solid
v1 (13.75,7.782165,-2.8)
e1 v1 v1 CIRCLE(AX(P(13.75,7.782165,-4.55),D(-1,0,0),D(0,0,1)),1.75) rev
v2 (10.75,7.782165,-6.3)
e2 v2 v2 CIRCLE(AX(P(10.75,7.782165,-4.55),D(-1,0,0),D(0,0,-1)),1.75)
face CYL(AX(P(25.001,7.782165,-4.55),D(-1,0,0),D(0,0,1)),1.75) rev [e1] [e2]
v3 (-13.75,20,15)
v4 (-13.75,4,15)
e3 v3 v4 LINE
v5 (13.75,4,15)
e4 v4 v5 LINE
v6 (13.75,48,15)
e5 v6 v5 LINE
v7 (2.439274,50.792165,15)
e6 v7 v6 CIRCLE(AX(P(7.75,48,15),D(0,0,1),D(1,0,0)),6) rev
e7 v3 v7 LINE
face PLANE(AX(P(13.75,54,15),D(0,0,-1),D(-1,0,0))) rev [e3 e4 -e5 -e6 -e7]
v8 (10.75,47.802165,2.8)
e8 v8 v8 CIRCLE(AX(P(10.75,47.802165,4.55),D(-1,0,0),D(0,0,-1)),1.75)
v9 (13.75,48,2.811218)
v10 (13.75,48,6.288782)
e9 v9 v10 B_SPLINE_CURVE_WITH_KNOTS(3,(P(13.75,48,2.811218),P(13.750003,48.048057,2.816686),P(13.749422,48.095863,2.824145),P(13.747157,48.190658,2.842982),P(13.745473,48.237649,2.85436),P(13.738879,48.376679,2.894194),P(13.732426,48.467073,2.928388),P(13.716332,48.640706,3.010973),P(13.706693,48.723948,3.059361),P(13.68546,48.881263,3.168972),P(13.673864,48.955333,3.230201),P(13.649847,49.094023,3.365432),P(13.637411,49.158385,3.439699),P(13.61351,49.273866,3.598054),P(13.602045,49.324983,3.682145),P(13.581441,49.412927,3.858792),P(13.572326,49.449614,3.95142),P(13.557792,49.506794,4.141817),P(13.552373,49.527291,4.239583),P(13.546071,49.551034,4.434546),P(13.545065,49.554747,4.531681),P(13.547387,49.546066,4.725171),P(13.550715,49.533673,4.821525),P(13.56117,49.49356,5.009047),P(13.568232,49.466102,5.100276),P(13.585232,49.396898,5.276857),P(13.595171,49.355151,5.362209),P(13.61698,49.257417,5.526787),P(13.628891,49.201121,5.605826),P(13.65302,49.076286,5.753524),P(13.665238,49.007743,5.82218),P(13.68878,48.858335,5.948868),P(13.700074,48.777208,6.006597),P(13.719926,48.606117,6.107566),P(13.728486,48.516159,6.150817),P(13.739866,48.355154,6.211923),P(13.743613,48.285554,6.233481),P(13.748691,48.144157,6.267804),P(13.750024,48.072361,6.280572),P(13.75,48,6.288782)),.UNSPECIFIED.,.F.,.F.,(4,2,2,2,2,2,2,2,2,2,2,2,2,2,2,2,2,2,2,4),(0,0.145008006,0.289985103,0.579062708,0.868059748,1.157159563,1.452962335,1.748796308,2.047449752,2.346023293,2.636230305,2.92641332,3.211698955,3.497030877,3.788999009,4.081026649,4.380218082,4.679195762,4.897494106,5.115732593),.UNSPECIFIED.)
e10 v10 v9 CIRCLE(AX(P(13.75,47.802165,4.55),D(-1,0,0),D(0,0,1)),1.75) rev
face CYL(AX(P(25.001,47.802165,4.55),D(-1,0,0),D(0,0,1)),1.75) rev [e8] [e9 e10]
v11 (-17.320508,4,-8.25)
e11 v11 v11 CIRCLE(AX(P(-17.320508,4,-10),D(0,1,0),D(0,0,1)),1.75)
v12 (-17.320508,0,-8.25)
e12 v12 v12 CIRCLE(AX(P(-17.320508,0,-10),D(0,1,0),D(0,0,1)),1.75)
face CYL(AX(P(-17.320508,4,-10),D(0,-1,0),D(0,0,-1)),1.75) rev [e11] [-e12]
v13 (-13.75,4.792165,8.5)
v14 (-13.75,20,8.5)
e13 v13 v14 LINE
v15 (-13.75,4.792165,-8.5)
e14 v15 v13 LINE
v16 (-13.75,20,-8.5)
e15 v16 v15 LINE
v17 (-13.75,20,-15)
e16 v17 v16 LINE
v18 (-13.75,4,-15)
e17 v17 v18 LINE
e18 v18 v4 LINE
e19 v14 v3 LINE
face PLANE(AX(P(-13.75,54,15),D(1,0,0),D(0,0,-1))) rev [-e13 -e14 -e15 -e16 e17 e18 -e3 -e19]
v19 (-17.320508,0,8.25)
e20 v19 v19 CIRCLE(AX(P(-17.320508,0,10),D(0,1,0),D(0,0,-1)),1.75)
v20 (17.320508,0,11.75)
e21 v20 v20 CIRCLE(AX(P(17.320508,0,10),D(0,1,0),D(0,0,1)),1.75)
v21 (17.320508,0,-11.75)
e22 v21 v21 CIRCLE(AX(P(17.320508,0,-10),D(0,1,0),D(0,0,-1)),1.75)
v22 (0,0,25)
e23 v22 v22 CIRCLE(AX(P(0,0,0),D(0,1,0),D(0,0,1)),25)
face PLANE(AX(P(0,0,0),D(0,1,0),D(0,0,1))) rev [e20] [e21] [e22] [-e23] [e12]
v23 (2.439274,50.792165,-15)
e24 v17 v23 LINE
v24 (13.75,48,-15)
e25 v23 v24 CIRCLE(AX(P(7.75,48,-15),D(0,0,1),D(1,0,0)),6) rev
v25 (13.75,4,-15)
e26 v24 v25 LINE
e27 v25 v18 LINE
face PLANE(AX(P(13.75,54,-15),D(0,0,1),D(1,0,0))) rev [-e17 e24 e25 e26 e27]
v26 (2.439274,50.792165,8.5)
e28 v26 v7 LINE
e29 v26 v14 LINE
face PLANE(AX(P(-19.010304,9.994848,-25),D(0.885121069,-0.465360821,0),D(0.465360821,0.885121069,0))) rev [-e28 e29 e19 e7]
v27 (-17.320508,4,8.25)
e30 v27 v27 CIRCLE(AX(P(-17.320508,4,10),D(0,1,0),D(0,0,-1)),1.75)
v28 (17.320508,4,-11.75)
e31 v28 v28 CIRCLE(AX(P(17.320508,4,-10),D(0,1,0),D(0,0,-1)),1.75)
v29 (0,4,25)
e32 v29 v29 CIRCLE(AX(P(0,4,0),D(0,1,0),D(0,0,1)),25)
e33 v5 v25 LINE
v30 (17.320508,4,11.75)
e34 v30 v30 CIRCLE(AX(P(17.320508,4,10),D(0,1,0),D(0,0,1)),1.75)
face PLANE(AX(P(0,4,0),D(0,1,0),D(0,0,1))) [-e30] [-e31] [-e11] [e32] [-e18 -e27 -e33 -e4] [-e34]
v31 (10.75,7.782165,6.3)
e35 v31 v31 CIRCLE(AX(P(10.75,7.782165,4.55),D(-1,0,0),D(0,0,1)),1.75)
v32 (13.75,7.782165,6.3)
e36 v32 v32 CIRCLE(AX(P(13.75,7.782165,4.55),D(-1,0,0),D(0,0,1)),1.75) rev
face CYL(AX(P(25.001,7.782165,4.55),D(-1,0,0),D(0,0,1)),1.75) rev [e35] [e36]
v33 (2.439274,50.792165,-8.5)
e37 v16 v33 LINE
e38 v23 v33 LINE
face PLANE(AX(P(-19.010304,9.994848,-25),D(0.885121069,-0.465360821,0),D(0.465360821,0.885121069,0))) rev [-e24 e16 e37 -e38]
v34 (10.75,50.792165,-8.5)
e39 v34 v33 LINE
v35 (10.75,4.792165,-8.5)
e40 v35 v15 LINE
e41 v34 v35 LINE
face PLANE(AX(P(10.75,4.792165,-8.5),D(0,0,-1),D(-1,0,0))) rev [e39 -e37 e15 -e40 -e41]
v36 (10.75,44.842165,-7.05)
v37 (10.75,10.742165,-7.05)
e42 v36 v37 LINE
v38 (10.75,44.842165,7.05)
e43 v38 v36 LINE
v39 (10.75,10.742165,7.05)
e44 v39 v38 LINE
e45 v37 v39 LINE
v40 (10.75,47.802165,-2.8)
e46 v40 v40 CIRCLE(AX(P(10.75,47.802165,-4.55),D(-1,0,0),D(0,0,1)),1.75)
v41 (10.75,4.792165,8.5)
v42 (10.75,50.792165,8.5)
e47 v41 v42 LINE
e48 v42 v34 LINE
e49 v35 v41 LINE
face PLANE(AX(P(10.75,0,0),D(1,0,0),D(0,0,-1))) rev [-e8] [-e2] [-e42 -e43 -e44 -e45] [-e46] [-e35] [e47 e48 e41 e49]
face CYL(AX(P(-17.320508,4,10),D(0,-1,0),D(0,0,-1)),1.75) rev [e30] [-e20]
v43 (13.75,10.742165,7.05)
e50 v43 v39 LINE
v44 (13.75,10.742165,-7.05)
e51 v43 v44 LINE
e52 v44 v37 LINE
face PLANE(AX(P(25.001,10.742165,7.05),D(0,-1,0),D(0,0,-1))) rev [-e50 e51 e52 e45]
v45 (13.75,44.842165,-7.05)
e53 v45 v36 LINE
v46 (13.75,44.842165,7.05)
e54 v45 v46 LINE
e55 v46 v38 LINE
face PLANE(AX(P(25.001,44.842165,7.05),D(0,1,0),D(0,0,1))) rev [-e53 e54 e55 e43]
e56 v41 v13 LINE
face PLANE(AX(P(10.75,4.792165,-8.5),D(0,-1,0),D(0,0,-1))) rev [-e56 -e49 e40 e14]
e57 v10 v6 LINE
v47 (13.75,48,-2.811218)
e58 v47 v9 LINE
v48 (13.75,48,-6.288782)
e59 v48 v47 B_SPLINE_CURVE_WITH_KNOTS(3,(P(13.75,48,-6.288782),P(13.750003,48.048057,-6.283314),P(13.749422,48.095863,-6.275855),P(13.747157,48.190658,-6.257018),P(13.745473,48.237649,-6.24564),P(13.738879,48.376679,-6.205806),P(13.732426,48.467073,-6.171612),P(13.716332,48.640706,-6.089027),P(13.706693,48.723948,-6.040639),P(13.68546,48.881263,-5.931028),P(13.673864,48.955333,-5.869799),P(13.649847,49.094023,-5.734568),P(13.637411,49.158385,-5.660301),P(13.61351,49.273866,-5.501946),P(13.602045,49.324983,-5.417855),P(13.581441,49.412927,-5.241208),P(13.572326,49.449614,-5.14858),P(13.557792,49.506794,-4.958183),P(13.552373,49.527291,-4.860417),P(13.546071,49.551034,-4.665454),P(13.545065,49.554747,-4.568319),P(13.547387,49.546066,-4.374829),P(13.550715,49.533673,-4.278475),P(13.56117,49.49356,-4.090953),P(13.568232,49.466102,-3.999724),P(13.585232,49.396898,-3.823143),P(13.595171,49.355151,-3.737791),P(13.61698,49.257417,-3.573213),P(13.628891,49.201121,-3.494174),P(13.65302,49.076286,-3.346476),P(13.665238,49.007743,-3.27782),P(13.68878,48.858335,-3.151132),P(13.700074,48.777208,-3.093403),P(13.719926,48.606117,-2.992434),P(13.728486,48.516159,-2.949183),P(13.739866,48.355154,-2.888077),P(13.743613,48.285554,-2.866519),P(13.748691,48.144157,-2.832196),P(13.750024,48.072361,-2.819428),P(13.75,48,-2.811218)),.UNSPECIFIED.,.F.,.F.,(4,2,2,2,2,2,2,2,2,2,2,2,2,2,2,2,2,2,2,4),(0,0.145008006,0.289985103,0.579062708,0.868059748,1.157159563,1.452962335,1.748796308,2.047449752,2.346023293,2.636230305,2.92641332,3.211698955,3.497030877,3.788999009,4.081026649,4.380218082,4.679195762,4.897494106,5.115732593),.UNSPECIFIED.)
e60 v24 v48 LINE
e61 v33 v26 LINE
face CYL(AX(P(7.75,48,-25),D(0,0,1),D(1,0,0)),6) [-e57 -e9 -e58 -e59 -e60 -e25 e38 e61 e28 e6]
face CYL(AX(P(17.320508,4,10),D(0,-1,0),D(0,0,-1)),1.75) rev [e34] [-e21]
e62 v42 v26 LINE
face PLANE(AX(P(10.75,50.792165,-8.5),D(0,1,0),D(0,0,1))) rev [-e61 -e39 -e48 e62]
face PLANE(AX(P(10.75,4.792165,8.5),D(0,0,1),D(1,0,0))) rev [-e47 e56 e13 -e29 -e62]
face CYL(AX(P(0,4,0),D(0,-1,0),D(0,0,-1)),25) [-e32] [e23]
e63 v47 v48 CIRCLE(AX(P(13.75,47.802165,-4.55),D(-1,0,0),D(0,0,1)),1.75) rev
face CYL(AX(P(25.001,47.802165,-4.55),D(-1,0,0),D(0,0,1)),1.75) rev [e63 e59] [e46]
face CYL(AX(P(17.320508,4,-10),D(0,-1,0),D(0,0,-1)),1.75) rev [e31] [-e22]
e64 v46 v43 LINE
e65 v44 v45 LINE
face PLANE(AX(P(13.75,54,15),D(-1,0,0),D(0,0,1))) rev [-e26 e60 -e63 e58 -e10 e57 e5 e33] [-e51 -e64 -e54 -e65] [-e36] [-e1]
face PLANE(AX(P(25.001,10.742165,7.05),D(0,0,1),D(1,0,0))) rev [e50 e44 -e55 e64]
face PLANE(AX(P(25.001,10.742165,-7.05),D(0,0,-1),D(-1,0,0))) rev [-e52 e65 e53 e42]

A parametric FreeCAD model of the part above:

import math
import FreeCAD as App
import Part
import Sketcher
from FreeCAD import Vector

doc = App.newDocument("Part")
body = doc.addObject("PartDesign::Body", "Body")

sketch1 = body.newObject("Sketcher::SketchObject", "Sketch")
sketch1.AttachmentSupport = (doc.getObject("XZ_Plane"), [""])
sketch1.MapMode = "FlatFace"
sketch1.addGeometry([
    Part.Circle(Vector(0, 0, 0), Vector(0, 0, 1), 25),
    Part.Circle(Vector(-17.3, 10, 0), Vector(0, 0, 1), 1.8),
    Part.Circle(Vector(17.3, 10, 0), Vector(0, 0, 1), 1.8),
    Part.Circle(Vector(-17.3, -10, 0), Vector(0, 0, 1), 1.8),
    Part.Circle(Vector(17.3, -10, 0), Vector(0, 0, 1), 1.8),
], False)
sketch1.addConstraint([
    Sketcher.Constraint("Coincident", 0, 3, -1, 1),
    Sketcher.Constraint("Equal", 1, 2),
    Sketcher.Constraint("Equal", 2, 3),
    Sketcher.Constraint("Equal", 3, 4),
    Sketcher.Constraint("Symmetric", 2, 3, 3, 3, -1, 1),
    Sketcher.Constraint("Symmetric", 1, 3, 4, 3, -1, 1),
    Sketcher.Constraint("Symmetric", 1, 3, 2, 3, -2),
    Sketcher.Constraint("Diameter", 0, 50.0),
    Sketcher.Constraint("Diameter", 1, 3.5),
    Sketcher.Constraint("DistanceY", -1, 1, 1, 3, 10.0),
    Sketcher.Constraint("DistanceX", 1, 3, -1, 1, 17.320508),
])
pad1 = body.newObject("PartDesign::Pad", "Pad")
pad1.Profile = sketch1
pad1.Length = 4
pad1.Reversed = True

sketch2 = body.newObject("Sketcher::SketchObject", "Sketch001")
sketch2.AttachmentSupport = (doc.getObject("XZ_Plane"), [""])
sketch2.MapMode = "FlatFace"
sketch2.AttachmentOffset = App.Placement(Vector(0, 0, -4), App.Rotation())
sketch2.addGeometry([
    Part.LineSegment(Vector(-14, -15, 0), Vector(-14, 15, 0)),
    Part.LineSegment(Vector(-14, 15, 0), Vector(14, 15, 0)),
    Part.LineSegment(Vector(14, 15, 0), Vector(14, -15, 0)),
    Part.LineSegment(Vector(14, -15, 0), Vector(-14, -15, 0)),
], False)
sketch2.addConstraint([
    Sketcher.Constraint("Coincident", 0, 2, 1, 1),
    Sketcher.Constraint("Coincident", 1, 2, 2, 1),
    Sketcher.Constraint("Coincident", 2, 2, 3, 1),
    Sketcher.Constraint("Coincident", 3, 2, 0, 1),
    Sketcher.Constraint("Vertical", 0),
    Sketcher.Constraint("Horizontal", 1),
    Sketcher.Constraint("Vertical", 2),
    Sketcher.Constraint("Horizontal", 3),
    Sketcher.Constraint("Symmetric", 0, 2, 2, 2, -1, 1),
    Sketcher.Constraint("DistanceY", 0, 1, 0, 2, 30.0),
    Sketcher.Constraint("DistanceX", 1, 1, 1, 2, 27.5),
])
pad2 = body.newObject("PartDesign::Pad", "Pad001")
pad2.Profile = sketch2
pad2.Length = 50
pad2.Reversed = True

sketch3 = body.newObject("Sketcher::SketchObject", "Sketch002")
sketch3.AttachmentSupport = (doc.getObject("XY_Plane"), [""])
sketch3.MapMode = "FlatFace"
sketch3.AttachmentOffset = App.Placement(Vector(0, 0, 15), App.Rotation())
sketch3.addGeometry([
    Part.ArcOfCircle(Part.Circle(Vector(8, 48, 0), Vector(0, 0, 1), 6), math.radians(90), math.radians(152)),
    Part.LineSegment(Vector(8, 54, 0), Vector(-14, 54, 0)),
    Part.LineSegment(Vector(-14, 54, 0), Vector(-14, 20, 0)),
    Part.LineSegment(Vector(-14, 20, 0), Vector(2, 51, 0)),
    Part.LineSegment(Vector(14, 48, 0), Vector(14, 54, 0)),
    Part.LineSegment(Vector(14, 54, 0), Vector(8, 54, 0)),
    Part.ArcOfCircle(Part.Circle(Vector(8, 48, 0), Vector(0, 0, 1), 6), math.radians(0), math.radians(90)),
], False)
sketch3.addConstraint([
    Sketcher.Constraint("Tangent", 0, 1, 1, 1),
    Sketcher.Constraint("Coincident", 1, 2, 2, 1),
    Sketcher.Constraint("Coincident", 2, 2, 3, 1),
    Sketcher.Constraint("Tangent", 3, 2, 0, 2),
    Sketcher.Constraint("Coincident", 4, 2, 5, 1),
    Sketcher.Constraint("Tangent", 5, 2, 6, 2),
    Sketcher.Constraint("Tangent", 6, 1, 4, 1),
    Sketcher.Constraint("Horizontal", 1),
    Sketcher.Constraint("Vertical", 2),
    Sketcher.Constraint("Vertical", 4),
    Sketcher.Constraint("Horizontal", 5),
    Sketcher.Constraint("Coincident", 6, 3, 0, 3),
    Sketcher.Constraint("Equal", 0, 6),
    Sketcher.Constraint("Radius", 0, 6.0),
    Sketcher.Constraint("DistanceY", 2, 2, 2, 1, 34.0),
    Sketcher.Constraint("DistanceX", 1, 2, 1, 1, 21.5),
    Sketcher.Constraint("DistanceY", -1, 1, 0, 3, 48.0),
    Sketcher.Constraint("DistanceX", -1, 1, 0, 3, 7.75),
])
pocket1 = body.newObject("PartDesign::Pocket", "Pocket")
pocket1.Profile = sketch3
pocket1.Type = "ThroughAll"

sketch4 = body.newObject("Sketcher::SketchObject", "Sketch003")
sketch4.AttachmentSupport = (doc.getObject("YZ_Plane"), [""])
sketch4.MapMode = "FlatFace"
sketch4.AttachmentOffset = App.Placement(Vector(0, 0, -13.75), App.Rotation())
sketch4.addGeometry([
    Part.LineSegment(Vector(51, -8, 0), Vector(5, -8, 0)),
    Part.LineSegment(Vector(5, -8, 0), Vector(5, 8, 0)),
    Part.LineSegment(Vector(5, 8, 0), Vector(51, 8, 0)),
    Part.LineSegment(Vector(51, 8, 0), Vector(51, -8, 0)),
], False)
sketch4.addConstraint([
    Sketcher.Constraint("Coincident", 0, 2, 1, 1),
    Sketcher.Constraint("Coincident", 1, 2, 2, 1),
    Sketcher.Constraint("Coincident", 2, 2, 3, 1),
    Sketcher.Constraint("Coincident", 3, 2, 0, 1),
    Sketcher.Constraint("Horizontal", 0),
    Sketcher.Constraint("Vertical", 1),
    Sketcher.Constraint("Horizontal", 2),
    Sketcher.Constraint("Vertical", 3),
    Sketcher.Constraint("DistanceX", 0, 2, 0, 1, 46.0),
    Sketcher.Constraint("DistanceY", 1, 1, 1, 2, 17.0),
    Sketcher.Constraint("DistanceY", 0, 2, -1, 1, 8.5),
    Sketcher.Constraint("DistanceX", -1, 1, 0, 2, 4.792165),
])
pocket2 = body.newObject("PartDesign::Pocket", "Pocket001")
pocket2.Profile = sketch4
pocket2.Length = 24.5
pocket2.Reversed = True

sketch5 = body.newObject("Sketcher::SketchObject", "Sketch004")
sketch5.AttachmentSupport = (doc.getObject("YZ_Plane"), [""])
sketch5.MapMode = "FlatFace"
sketch5.AttachmentOffset = App.Placement(Vector(0, 0, 10.75), App.Rotation())
sketch5.addGeometry(Part.Circle(Vector(47.8, -4.5, 0), Vector(0, 0, 1), 1.8), False)
sketch5.addConstraint([
    Sketcher.Constraint("Diameter", 0, 3.5),
    Sketcher.Constraint("DistanceY", 0, 3, -1, 1, 4.55),
    Sketcher.Constraint("DistanceX", -1, 1, 0, 3, 47.802165),
])
pocket3 = body.newObject("PartDesign::Pocket", "Pocket002")
pocket3.Profile = sketch5
pocket3.Type = "UpToFirst"
pocket3.Reversed = True

sketch6 = body.newObject("Sketcher::SketchObject", "Sketch005")
sketch6.AttachmentSupport = (doc.getObject("YZ_Plane"), [""])
sketch6.MapMode = "FlatFace"
sketch6.AttachmentOffset = App.Placement(Vector(0, 0, 10.75), App.Rotation())
sketch6.addGeometry(Part.Circle(Vector(7.8, -4.5, 0), Vector(0, 0, 1), 1.8), False)
sketch6.addConstraint([
    Sketcher.Constraint("Diameter", 0, 3.5),
    Sketcher.Constraint("DistanceY", 0, 3, -1, 1, 4.55),
    Sketcher.Constraint("DistanceX", -1, 1, 0, 3, 7.782165),
])
pocket4 = body.newObject("PartDesign::Pocket", "Pocket003")
pocket4.Profile = sketch6
pocket4.Type = "UpToFirst"
pocket4.Reversed = True

sketch7 = body.newObject("Sketcher::SketchObject", "Sketch006")
sketch7.AttachmentSupport = (doc.getObject("YZ_Plane"), [""])
sketch7.MapMode = "FlatFace"
sketch7.AttachmentOffset = App.Placement(Vector(0, 0, 10.75), App.Rotation())
sketch7.addGeometry(Part.Circle(Vector(7.8, 4.5, 0), Vector(0, 0, 1), 1.8), False)
sketch7.addConstraint([
    Sketcher.Constraint("Diameter", 0, 3.5),
    Sketcher.Constraint("DistanceY", -1, 1, 0, 3, 4.55),
    Sketcher.Constraint("DistanceX", -1, 1, 0, 3, 7.782165),
])
pocket5 = body.newObject("PartDesign::Pocket", "Pocket004")
pocket5.Profile = sketch7
pocket5.Type = "UpToFirst"
pocket5.Reversed = True

sketch8 = body.newObject("Sketcher::SketchObject", "Sketch007")
sketch8.AttachmentSupport = (doc.getObject("YZ_Plane"), [""])
sketch8.MapMode = "FlatFace"
sketch8.AttachmentOffset = App.Placement(Vector(0, 0, 10.75), App.Rotation())
sketch8.addGeometry(Part.Circle(Vector(47.8, 4.5, 0), Vector(0, 0, 1), 1.8), False)
sketch8.addConstraint([
    Sketcher.Constraint("Diameter", 0, 3.5),
    Sketcher.Constraint("DistanceY", -1, 1, 0, 3, 4.55),
    Sketcher.Constraint("DistanceX", -1, 1, 0, 3, 47.802165),
])
pocket6 = body.newObject("PartDesign::Pocket", "Pocket005")
pocket6.Profile = sketch8
pocket6.Type = "UpToFirst"
pocket6.Reversed = True

sketch9 = body.newObject("Sketcher::SketchObject", "Sketch008")
sketch9.AttachmentSupport = (doc.getObject("YZ_Plane"), [""])
sketch9.MapMode = "FlatFace"
sketch9.AttachmentOffset = App.Placement(Vector(0, 0, 10.75), App.Rotation())
sketch9.addGeometry([
    Part.LineSegment(Vector(45, -7, 0), Vector(11, -7, 0)),
    Part.LineSegment(Vector(11, -7, 0), Vector(11, 7, 0)),
    Part.LineSegment(Vector(11, 7, 0), Vector(45, 7, 0)),
    Part.LineSegment(Vector(45, 7, 0), Vector(45, -7, 0)),
], False)
sketch9.addConstraint([
    Sketcher.Constraint("Coincident", 0, 2, 1, 1),
    Sketcher.Constraint("Coincident", 1, 2, 2, 1),
    Sketcher.Constraint("Coincident", 2, 2, 3, 1),
    Sketcher.Constraint("Coincident", 3, 2, 0, 1),
    Sketcher.Constraint("Horizontal", 0),
    Sketcher.Constraint("Vertical", 1),
    Sketcher.Constraint("Horizontal", 2),
    Sketcher.Constraint("Vertical", 3),
    Sketcher.Constraint("DistanceX", 0, 2, 0, 1, 34.1),
    Sketcher.Constraint("DistanceY", 1, 1, 1, 2, 14.1),
    Sketcher.Constraint("DistanceY", 0, 2, -1, 1, 7.05),
    Sketcher.Constraint("DistanceX", -1, 1, 0, 2, 10.742165),
])
pocket7 = body.newObject("PartDesign::Pocket", "Pocket006")
pocket7.Profile = sketch9
pocket7.Type = "UpToFirst"
pocket7.Reversed = True

doc.recompute()
